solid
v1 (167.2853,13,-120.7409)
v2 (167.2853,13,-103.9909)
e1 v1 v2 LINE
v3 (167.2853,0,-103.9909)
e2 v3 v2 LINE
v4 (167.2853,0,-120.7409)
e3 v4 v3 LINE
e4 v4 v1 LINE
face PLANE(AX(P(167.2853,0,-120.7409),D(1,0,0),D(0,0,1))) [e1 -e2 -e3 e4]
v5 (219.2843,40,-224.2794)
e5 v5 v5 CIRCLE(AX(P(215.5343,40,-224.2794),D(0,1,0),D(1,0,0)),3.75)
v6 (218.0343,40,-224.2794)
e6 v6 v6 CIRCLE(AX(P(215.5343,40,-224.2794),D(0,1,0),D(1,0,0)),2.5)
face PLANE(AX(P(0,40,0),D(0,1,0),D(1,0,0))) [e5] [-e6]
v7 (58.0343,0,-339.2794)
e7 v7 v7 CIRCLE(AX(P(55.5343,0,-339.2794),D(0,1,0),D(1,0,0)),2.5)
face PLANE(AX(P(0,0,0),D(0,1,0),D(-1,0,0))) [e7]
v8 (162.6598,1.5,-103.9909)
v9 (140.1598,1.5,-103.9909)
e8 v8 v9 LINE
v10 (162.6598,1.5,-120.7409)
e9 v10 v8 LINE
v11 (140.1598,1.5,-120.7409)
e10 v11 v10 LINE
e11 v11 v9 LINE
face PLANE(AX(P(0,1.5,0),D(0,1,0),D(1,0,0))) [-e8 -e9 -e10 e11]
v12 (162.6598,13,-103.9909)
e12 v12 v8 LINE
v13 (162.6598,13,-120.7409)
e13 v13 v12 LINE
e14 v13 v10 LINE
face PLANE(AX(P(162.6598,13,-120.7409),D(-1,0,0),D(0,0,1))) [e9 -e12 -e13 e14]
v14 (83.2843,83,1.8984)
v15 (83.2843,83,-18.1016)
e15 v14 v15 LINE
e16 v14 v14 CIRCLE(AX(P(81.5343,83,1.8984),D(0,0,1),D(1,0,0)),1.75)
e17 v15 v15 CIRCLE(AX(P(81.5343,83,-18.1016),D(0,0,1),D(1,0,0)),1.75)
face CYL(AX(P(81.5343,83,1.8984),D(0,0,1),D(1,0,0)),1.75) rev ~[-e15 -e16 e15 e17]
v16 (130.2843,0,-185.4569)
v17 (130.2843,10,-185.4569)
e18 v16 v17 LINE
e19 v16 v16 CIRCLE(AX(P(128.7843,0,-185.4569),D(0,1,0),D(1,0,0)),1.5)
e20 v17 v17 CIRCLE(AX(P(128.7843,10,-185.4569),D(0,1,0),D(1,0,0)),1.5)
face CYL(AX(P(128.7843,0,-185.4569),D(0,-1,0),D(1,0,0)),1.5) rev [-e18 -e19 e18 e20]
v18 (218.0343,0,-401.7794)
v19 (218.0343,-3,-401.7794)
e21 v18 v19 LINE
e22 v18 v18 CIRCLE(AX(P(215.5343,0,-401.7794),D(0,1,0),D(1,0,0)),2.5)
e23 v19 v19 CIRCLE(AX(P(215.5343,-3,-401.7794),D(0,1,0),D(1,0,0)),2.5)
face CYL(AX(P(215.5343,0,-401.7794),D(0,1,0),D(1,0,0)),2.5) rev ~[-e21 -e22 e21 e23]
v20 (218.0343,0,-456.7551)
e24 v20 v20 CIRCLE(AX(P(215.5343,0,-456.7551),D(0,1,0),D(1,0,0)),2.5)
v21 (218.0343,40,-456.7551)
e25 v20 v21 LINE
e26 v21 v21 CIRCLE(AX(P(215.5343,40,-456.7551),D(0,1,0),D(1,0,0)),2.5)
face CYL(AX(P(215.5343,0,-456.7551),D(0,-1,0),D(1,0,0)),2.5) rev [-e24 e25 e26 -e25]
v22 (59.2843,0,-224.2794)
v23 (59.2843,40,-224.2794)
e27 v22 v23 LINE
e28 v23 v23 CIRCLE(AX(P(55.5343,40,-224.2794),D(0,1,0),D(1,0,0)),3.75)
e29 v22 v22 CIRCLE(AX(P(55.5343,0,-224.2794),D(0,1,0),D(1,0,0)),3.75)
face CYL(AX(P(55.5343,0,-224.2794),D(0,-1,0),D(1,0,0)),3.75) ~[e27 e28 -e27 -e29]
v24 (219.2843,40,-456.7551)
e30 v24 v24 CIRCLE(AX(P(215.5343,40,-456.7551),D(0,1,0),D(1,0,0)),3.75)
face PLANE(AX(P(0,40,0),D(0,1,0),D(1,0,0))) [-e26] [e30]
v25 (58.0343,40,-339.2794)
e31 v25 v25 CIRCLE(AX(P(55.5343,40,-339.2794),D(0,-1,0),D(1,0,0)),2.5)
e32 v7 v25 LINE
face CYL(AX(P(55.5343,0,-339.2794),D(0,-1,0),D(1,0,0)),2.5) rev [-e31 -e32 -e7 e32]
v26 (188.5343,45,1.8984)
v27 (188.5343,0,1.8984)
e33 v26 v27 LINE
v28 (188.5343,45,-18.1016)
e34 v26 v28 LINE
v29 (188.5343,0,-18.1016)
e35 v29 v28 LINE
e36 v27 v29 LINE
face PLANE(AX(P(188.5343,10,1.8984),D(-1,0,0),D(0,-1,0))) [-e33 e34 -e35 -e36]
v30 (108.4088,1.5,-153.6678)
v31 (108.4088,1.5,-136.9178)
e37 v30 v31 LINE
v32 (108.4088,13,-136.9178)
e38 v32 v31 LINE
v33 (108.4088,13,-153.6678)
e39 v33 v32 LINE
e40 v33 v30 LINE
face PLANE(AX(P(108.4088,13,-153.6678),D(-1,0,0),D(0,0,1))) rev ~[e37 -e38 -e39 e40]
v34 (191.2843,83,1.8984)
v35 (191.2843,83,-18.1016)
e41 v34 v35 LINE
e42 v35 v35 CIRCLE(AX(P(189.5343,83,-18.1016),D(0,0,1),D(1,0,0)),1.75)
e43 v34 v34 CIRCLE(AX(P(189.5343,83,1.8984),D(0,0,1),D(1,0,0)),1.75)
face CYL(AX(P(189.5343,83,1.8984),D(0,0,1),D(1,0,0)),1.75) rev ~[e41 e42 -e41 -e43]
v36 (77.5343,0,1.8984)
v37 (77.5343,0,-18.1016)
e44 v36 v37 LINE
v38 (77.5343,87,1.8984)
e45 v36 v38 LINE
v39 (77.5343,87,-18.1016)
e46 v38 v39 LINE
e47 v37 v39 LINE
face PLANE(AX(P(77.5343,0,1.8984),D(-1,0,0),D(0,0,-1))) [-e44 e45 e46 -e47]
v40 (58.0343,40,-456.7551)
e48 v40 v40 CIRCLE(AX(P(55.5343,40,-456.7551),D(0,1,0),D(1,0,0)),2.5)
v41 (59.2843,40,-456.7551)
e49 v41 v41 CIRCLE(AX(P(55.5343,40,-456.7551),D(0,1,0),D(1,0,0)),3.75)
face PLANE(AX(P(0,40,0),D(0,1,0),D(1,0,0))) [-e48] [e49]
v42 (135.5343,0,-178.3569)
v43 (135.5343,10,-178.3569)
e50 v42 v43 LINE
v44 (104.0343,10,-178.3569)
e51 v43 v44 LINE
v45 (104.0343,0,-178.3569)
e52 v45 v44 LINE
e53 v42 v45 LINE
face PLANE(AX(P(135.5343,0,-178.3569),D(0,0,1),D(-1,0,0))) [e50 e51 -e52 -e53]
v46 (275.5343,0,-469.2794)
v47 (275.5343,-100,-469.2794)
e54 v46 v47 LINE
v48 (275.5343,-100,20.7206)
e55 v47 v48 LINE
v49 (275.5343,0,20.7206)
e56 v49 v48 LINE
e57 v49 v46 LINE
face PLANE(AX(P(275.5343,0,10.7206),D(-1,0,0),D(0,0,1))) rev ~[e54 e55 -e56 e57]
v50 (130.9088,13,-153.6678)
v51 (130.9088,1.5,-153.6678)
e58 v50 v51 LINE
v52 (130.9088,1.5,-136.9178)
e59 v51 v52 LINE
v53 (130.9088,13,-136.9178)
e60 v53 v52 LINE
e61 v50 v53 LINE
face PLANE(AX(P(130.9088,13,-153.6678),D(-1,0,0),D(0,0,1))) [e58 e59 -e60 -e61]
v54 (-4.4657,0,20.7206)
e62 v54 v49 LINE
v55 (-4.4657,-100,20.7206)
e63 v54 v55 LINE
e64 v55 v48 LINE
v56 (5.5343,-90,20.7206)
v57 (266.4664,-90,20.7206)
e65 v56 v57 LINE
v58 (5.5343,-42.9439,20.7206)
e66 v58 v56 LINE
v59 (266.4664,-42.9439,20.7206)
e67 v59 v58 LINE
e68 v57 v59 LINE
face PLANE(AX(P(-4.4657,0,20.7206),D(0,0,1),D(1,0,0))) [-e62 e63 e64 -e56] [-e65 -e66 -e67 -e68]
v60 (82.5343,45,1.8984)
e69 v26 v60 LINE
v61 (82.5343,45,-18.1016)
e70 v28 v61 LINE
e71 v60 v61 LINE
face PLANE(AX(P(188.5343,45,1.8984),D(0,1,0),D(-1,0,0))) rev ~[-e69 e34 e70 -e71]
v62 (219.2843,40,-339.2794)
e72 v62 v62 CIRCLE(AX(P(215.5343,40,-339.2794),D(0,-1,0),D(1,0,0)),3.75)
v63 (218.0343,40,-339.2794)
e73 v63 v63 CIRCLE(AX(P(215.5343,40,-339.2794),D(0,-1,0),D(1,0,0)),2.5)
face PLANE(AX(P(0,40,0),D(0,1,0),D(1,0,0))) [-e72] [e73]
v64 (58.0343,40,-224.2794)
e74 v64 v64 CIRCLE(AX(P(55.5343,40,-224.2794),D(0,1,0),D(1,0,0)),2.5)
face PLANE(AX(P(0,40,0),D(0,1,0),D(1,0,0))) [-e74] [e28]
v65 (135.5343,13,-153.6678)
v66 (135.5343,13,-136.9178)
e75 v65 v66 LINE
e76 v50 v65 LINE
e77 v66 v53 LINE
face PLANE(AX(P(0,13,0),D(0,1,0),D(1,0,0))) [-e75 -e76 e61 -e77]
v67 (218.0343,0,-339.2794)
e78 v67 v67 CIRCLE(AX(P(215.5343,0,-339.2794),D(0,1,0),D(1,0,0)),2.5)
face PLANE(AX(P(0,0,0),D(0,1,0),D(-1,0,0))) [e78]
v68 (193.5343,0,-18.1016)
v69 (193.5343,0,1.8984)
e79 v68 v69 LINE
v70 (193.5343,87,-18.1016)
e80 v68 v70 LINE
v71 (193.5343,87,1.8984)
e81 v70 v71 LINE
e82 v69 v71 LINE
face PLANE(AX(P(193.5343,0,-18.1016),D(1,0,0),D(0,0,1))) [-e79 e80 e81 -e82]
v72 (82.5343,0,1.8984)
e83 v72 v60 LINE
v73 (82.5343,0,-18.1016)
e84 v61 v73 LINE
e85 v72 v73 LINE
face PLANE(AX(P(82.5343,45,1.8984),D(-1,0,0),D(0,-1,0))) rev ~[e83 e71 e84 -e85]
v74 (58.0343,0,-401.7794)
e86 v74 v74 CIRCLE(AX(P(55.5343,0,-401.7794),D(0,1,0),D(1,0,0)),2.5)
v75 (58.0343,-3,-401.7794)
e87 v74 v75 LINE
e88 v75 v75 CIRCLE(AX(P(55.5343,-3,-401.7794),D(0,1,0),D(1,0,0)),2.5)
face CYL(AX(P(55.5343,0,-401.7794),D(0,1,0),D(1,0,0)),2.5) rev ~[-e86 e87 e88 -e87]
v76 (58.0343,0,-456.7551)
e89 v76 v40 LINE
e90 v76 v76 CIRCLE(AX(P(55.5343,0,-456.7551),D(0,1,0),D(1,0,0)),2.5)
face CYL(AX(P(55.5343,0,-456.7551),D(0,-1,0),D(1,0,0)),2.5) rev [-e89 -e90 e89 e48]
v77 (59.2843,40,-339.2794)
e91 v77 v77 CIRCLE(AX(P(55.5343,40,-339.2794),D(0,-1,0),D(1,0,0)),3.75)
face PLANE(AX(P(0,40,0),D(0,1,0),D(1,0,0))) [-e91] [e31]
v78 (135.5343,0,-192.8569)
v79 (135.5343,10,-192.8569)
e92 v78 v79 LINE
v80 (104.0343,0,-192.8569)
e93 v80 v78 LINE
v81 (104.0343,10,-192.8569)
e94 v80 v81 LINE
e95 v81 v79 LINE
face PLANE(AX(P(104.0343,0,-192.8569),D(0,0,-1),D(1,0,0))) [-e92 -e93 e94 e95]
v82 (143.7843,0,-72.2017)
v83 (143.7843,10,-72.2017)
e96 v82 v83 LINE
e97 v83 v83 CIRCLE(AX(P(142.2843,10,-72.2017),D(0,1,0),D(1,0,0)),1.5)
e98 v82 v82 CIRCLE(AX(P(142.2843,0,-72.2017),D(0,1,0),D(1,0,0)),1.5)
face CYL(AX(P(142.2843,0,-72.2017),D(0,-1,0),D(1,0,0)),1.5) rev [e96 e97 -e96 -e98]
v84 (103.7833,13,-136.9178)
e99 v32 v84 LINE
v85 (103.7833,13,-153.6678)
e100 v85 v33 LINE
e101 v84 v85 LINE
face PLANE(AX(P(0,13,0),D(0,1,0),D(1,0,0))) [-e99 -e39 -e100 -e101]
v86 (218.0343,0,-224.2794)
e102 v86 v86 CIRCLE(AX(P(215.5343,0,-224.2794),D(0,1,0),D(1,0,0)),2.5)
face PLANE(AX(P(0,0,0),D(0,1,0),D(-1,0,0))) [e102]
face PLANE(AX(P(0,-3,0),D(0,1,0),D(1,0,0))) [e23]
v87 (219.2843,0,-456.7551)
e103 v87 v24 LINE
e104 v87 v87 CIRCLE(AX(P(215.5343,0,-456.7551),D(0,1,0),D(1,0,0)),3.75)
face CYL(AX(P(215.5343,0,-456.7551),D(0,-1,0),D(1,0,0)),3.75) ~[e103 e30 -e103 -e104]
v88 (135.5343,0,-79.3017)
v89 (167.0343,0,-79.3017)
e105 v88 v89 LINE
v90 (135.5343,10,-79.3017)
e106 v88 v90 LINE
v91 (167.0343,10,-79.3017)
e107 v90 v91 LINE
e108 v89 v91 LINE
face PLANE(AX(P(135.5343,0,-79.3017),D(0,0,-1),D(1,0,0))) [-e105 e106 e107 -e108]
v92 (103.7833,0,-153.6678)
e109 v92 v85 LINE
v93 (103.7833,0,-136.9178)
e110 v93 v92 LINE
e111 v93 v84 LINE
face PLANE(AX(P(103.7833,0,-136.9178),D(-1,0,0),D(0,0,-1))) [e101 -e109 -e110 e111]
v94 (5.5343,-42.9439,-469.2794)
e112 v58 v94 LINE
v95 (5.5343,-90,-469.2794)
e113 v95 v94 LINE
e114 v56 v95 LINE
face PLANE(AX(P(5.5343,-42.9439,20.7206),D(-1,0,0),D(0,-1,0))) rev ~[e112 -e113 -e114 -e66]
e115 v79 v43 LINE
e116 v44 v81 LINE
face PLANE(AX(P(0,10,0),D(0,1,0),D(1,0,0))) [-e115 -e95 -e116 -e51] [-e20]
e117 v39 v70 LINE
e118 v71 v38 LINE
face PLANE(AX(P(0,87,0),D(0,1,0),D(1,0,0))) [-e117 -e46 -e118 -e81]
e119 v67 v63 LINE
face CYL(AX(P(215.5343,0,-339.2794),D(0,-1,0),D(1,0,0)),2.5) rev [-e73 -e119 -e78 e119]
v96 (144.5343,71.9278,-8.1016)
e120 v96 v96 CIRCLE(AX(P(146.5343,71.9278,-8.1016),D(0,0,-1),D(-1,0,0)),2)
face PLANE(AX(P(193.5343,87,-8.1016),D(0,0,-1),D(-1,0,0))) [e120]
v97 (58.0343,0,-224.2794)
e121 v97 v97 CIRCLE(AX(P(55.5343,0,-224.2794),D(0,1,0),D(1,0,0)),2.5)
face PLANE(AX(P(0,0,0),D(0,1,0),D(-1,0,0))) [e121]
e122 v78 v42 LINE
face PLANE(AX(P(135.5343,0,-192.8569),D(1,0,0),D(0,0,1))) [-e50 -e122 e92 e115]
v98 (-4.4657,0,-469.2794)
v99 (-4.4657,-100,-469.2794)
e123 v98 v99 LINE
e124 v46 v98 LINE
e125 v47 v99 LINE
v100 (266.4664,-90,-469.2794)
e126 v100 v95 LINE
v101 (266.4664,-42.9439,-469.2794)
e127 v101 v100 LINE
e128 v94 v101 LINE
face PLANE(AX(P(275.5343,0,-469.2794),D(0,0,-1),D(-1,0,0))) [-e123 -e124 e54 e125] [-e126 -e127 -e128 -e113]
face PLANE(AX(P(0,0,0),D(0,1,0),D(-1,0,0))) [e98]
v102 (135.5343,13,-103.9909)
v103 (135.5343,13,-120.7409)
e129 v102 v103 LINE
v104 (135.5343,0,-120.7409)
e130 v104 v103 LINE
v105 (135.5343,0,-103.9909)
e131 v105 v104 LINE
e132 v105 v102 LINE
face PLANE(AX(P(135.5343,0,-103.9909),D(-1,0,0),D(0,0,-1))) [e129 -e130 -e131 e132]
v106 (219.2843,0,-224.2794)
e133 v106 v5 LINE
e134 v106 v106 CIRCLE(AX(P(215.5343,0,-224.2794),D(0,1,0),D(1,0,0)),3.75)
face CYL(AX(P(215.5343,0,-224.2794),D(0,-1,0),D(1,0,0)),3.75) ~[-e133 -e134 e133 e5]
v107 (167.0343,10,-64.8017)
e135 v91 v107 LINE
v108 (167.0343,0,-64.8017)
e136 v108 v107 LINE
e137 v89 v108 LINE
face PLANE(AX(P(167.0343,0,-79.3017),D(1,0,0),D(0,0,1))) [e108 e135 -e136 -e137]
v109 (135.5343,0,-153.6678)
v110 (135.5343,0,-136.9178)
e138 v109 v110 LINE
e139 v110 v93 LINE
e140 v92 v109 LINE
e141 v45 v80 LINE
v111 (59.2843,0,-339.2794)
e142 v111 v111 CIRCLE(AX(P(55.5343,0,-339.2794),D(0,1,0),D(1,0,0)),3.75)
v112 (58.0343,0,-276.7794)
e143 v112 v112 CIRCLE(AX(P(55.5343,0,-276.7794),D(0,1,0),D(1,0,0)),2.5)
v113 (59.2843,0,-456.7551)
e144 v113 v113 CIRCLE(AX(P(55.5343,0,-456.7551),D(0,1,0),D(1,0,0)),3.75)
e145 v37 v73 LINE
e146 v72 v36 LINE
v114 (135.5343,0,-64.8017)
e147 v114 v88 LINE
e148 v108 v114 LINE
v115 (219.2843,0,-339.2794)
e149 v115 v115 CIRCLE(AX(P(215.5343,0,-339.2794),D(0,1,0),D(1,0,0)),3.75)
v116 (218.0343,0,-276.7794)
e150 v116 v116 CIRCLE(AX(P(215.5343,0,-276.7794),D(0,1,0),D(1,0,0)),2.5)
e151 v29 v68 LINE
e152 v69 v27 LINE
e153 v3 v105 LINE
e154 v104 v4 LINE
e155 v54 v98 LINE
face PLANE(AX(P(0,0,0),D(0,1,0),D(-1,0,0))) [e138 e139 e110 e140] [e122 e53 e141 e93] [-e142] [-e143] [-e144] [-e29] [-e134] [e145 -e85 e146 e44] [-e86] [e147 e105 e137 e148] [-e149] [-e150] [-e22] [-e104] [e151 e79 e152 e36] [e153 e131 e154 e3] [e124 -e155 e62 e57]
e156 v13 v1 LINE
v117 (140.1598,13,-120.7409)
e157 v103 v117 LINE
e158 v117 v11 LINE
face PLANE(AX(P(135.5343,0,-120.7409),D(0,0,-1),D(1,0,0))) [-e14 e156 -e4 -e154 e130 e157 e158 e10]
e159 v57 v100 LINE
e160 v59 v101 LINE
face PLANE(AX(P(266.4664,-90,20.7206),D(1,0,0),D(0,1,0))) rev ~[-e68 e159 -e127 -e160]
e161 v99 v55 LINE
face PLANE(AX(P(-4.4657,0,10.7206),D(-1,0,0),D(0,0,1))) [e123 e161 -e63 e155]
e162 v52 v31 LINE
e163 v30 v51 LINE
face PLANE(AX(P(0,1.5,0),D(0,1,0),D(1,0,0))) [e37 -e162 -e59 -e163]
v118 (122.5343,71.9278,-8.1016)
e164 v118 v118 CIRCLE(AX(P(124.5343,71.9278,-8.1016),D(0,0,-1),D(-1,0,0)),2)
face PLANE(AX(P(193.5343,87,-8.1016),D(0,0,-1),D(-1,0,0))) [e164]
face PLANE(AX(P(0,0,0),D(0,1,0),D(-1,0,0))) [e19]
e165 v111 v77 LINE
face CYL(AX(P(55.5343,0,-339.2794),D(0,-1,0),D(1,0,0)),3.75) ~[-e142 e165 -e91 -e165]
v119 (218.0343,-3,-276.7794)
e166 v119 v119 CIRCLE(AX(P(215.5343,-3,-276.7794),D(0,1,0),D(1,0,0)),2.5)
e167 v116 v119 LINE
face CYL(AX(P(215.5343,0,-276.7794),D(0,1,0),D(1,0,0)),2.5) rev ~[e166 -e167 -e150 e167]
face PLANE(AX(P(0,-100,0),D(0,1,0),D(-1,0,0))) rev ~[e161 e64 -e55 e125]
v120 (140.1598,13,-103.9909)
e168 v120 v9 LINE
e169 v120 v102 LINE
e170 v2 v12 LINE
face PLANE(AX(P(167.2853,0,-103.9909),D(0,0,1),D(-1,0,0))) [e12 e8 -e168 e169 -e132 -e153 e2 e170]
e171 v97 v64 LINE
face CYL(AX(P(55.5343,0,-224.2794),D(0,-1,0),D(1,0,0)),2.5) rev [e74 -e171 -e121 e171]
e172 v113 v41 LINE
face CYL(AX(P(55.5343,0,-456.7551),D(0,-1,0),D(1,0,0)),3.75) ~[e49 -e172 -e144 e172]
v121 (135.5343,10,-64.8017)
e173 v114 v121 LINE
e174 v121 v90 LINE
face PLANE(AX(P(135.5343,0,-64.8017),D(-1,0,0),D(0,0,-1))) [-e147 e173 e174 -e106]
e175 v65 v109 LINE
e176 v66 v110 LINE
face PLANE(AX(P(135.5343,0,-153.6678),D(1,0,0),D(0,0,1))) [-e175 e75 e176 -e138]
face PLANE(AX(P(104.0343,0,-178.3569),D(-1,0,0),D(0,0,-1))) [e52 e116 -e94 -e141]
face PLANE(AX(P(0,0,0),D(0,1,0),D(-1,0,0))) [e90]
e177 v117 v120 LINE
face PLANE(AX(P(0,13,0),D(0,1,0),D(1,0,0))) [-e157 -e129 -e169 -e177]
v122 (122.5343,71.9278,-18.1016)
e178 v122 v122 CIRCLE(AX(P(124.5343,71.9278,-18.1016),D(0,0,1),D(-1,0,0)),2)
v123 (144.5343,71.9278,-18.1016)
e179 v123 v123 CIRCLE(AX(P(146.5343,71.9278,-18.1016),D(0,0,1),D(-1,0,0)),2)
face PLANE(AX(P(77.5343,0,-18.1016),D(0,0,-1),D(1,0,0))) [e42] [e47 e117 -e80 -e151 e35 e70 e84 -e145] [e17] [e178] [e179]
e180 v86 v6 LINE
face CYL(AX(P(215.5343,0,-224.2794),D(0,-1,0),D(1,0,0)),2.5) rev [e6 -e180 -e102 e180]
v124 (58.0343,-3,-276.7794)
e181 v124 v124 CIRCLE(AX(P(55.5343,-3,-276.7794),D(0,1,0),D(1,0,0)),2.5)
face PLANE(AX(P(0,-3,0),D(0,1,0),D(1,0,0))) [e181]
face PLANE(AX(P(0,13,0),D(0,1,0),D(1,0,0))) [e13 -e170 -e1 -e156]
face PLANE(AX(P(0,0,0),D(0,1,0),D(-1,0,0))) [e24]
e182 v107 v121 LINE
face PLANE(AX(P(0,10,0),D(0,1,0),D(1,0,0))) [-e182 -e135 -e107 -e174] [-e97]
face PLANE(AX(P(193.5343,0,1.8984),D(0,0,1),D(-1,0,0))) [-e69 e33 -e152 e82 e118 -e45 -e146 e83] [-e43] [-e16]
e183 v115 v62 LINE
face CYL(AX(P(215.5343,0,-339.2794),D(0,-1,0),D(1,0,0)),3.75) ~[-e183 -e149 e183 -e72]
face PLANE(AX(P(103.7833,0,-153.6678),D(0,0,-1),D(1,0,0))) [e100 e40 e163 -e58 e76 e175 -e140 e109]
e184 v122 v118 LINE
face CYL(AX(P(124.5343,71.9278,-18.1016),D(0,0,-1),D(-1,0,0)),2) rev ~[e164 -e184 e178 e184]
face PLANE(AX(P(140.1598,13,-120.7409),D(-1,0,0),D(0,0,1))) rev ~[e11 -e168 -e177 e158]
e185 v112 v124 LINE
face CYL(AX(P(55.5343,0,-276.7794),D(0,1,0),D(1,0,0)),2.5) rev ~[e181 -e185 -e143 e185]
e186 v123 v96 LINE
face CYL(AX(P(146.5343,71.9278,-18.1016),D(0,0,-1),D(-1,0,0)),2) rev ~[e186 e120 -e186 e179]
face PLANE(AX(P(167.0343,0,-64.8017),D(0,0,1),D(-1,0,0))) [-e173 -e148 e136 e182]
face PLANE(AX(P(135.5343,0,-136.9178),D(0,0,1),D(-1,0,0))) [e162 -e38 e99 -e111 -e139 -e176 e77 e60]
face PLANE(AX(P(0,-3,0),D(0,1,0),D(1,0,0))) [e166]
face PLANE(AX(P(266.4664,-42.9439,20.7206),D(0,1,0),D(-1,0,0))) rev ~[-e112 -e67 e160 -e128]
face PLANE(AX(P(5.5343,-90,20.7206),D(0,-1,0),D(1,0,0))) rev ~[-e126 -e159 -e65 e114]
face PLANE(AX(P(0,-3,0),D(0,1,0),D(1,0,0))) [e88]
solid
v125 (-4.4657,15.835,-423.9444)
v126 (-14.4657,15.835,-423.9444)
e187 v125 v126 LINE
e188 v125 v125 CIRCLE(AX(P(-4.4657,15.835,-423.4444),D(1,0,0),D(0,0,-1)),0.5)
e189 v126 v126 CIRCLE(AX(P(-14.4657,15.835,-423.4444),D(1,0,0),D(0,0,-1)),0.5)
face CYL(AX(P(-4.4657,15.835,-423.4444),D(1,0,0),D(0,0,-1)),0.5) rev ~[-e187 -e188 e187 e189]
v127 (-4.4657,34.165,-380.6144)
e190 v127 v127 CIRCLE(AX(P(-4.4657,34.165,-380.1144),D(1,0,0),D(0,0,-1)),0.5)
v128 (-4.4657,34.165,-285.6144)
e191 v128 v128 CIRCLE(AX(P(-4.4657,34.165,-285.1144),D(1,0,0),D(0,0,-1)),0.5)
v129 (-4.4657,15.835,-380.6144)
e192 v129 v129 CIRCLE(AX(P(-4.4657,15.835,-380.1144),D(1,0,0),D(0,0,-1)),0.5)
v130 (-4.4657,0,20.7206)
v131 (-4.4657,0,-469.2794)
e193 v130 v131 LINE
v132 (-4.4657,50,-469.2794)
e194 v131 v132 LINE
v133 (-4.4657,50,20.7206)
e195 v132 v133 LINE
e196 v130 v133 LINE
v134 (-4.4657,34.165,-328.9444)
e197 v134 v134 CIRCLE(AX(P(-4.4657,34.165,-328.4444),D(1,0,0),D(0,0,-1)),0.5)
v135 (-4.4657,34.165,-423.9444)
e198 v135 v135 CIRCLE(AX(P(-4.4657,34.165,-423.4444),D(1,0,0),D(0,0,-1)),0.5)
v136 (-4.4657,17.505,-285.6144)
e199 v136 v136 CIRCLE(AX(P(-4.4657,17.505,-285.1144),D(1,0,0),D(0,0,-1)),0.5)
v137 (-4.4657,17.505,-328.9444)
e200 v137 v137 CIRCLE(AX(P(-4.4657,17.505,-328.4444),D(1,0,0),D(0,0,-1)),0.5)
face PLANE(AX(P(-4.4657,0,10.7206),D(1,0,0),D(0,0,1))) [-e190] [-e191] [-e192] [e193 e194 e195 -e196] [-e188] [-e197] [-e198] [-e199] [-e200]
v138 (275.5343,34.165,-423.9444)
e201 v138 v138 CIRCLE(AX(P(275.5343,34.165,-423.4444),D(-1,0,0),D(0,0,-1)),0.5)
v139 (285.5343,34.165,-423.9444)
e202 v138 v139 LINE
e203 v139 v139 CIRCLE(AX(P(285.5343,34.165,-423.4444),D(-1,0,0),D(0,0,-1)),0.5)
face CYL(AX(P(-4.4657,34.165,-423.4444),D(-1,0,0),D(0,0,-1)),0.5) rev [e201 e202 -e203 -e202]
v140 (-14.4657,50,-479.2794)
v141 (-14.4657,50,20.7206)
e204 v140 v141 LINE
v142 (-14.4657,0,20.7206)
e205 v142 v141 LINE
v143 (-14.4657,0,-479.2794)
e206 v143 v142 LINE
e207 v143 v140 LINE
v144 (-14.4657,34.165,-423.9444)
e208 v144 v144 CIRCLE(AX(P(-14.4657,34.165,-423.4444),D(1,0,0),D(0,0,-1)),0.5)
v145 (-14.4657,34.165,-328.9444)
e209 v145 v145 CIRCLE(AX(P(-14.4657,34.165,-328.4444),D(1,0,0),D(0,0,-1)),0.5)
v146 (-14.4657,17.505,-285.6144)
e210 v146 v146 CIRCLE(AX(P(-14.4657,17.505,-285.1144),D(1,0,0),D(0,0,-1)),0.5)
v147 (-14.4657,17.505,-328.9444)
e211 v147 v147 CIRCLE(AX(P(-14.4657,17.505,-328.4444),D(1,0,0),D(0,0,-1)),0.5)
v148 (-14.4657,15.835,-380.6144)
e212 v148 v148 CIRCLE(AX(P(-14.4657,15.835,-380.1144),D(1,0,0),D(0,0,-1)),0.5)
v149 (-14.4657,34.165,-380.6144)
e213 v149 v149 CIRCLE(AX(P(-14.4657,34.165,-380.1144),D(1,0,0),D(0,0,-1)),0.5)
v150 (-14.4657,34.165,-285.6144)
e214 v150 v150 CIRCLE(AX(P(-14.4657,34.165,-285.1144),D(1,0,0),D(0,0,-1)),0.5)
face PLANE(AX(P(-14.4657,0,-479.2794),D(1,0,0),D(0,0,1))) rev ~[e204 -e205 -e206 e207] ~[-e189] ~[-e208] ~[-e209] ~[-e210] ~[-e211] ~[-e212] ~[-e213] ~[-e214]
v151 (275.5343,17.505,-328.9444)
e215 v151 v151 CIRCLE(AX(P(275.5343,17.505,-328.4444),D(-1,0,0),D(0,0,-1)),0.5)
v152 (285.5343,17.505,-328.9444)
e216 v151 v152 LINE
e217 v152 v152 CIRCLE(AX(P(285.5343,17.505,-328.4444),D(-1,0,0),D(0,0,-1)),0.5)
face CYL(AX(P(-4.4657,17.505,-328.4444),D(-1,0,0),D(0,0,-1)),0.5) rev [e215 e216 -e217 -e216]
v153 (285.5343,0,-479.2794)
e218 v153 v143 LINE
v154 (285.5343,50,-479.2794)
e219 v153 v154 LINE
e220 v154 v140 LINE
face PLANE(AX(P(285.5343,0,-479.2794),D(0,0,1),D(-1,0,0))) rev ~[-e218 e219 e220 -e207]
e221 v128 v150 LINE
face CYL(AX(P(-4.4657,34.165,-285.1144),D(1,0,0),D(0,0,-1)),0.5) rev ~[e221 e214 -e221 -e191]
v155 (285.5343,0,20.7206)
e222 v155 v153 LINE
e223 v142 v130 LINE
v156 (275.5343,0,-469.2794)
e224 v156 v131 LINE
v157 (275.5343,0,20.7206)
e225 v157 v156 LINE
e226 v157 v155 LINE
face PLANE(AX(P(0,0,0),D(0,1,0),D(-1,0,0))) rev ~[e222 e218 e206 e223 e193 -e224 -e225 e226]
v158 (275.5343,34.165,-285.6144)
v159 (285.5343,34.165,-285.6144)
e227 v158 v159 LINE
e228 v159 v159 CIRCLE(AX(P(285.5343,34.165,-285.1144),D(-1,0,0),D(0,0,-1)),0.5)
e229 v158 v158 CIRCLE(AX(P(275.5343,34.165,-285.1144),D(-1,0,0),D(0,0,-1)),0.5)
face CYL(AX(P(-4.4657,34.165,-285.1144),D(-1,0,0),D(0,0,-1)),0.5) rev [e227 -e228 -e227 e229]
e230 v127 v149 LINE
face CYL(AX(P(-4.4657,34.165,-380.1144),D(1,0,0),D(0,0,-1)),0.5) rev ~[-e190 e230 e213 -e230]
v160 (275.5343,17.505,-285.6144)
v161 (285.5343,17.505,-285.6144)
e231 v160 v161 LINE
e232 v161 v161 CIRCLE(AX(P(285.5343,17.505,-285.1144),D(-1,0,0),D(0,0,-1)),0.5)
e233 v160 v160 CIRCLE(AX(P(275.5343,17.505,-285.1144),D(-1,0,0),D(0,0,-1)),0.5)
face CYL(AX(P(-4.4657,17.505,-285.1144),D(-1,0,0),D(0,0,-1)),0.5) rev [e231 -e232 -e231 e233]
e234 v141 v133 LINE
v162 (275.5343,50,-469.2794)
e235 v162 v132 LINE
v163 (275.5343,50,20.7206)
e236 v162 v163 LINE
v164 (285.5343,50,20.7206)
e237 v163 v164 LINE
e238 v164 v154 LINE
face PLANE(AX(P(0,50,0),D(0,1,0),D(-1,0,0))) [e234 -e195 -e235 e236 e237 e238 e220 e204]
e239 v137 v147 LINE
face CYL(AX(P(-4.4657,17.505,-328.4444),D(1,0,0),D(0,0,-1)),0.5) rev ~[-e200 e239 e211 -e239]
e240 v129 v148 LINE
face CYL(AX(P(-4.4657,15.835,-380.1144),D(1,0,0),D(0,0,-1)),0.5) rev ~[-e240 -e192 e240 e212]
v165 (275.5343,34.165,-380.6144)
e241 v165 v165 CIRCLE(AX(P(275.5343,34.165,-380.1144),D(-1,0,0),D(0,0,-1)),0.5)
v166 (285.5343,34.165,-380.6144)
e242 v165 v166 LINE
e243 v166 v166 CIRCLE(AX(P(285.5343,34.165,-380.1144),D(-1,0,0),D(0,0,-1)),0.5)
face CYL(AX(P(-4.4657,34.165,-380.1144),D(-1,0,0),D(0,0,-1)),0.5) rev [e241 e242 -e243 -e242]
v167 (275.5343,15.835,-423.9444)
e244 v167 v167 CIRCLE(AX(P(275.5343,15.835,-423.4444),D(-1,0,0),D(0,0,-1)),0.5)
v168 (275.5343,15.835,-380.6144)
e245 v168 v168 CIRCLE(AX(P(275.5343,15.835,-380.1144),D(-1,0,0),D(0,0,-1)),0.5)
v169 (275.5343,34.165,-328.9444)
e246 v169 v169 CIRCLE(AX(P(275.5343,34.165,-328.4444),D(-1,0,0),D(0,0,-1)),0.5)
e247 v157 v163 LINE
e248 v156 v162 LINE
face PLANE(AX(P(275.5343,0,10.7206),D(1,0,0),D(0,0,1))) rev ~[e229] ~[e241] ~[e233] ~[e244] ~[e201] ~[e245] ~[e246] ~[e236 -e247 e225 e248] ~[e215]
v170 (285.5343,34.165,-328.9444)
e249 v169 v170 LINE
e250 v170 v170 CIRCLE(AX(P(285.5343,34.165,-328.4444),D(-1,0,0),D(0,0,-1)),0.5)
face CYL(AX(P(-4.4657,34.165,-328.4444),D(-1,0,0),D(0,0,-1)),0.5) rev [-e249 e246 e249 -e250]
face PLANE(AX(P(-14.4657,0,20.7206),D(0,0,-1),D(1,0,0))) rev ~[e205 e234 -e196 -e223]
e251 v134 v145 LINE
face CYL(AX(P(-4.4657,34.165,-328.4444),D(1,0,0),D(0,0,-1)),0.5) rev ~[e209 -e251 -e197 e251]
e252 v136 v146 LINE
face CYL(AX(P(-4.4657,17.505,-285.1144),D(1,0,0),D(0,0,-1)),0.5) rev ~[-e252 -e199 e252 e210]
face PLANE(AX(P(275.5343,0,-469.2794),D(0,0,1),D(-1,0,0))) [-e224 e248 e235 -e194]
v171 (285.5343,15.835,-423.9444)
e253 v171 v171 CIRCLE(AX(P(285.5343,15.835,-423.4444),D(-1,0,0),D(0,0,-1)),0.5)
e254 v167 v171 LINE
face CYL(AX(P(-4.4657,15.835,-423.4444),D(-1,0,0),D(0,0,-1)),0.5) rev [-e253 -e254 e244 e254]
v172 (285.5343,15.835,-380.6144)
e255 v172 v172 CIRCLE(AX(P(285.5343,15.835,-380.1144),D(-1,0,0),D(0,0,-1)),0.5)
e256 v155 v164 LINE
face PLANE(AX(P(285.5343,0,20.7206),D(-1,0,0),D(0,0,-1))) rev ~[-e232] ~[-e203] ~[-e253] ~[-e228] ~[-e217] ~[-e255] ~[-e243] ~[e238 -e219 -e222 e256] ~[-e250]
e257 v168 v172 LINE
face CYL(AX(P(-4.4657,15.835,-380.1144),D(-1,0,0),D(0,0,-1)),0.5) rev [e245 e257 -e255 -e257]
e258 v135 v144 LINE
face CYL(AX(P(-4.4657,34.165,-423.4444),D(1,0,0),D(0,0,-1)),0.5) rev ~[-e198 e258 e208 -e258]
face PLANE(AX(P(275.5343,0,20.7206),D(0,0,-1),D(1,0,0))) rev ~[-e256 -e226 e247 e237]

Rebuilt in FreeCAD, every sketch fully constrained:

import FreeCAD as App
import Part
import Sketcher

V = App.Vector
Q = App.Units.Quantity


def add_polygon(sketch, points):
    """Adds a closed chain of lines whose ends are joined by coincident constraints."""
    first, n = sketch.GeometryCount, len(points)
    for a, b in zip(points, points[1:] + points[:1]):
        sketch.addGeometry(Part.LineSegment(App.Vector(*a, 0), App.Vector(*b, 0)), False)
    for i in range(n):
        sketch.addConstraint(Sketcher.Constraint("Coincident", first + i, 2, first + (i + 1) % n, 1))

doc = App.newDocument("Part")
body = doc.addObject("PartDesign::Body", "Body")
body.AllowCompound = True

# Sketch on XZ plane
sketch1 = body.newObject("Sketcher::SketchObject", "Sketch")
sketch1.AttachmentSupport = (doc.getObject("XZ_Plane"), [""])
sketch1.MapMode = "FlatFace"
add_polygon(sketch1, [(-4.4657, -469.2794), (-4.4657, 20.7206), (275.5343, 20.7206), (275.5343, -469.2794)])  # lines 0-3
sketch1.addConstraint([
    Sketcher.Constraint("Vertical", 0),
    Sketcher.Constraint("Horizontal", 1),
    Sketcher.Constraint("Vertical", 2),
    Sketcher.Constraint("Horizontal", 3),
    Sketcher.Constraint("DistanceX", 1, 1, 1, 2, Q("280 mm")),
    Sketcher.Constraint("DistanceY", 0, 1, 0, 2, Q("490 mm")),
    Sketcher.Constraint("DistanceX", 0, 2, -1, 1, Q("4.4657 mm")),
    Sketcher.Constraint("DistanceY", -1, 1, 0, 2, Q("20.7206 mm")),
])
pad1 = body.newObject("PartDesign::Pad", "Pad")
pad1.Profile = sketch1
pad1.Length = 100

# Sketch on XZ plane
sketch2 = body.newObject("Sketcher::SketchObject", "Sketch001")
sketch2.AttachmentSupport = (doc.getObject("XZ_Plane"), [""])
sketch2.MapMode = "FlatFace"
add_polygon(sketch2, [(-14.4657, -479.2794), (-14.4657, 20.7206), (-4.4657, 20.7206), (-4.4657, -469.2794), (275.5343, -469.2794), (275.5343, 20.7206), (285.5343, 20.7206), (285.5343, -479.2794)])  # lines 0-7
sketch2.addConstraint([
    Sketcher.Constraint("Vertical", 0),
    Sketcher.Constraint("Horizontal", 1),
    Sketcher.Constraint("Vertical", 2),
    Sketcher.Constraint("Horizontal", 3),
    Sketcher.Constraint("Vertical", 4),
    Sketcher.Constraint("Horizontal", 5),
    Sketcher.Constraint("Vertical", 6),
    Sketcher.Constraint("Horizontal", 7),
    Sketcher.Constraint("Horizontal", 1, 2, 4, 2),
    Sketcher.Constraint("Equal", 1, 5),
    Sketcher.Constraint("DistanceX", 1, 1, 1, 2, Q("10 mm")),
    Sketcher.Constraint("DistanceX", 7, 2, 7, 1, Q("300 mm")),
    Sketcher.Constraint("DistanceY", 0, 1, 0, 2, Q("500 mm")),
    Sketcher.Constraint("DistanceY", 6, 2, 3, 2, Q("10 mm")),
    Sketcher.Constraint("DistanceX", 0, 2, -1, 1, Q("14.4657 mm")),
    Sketcher.Constraint("DistanceY", -1, 1, 0, 2, Q("20.7206 mm")),
])
pad2 = body.newObject("PartDesign::Pad", "Pad001")
pad2.Profile = sketch2
pad2.Length = 50
pad2.Reversed = True

# Sketch on XZ plane
sketch3 = body.newObject("Sketcher::SketchObject", "Sketch002")
sketch3.AttachmentSupport = (doc.getObject("XZ_Plane"), [""])
sketch3.MapMode = "FlatFace"
add_polygon(sketch3, [(135.5343, -178.3569), (135.5343, -192.8569), (104.0343, -192.8569), (104.0343, -178.3569)])  # lines 0-3
sketch3.addGeometry(Part.Circle(V(128.7843, -185.4569, 0), V(0, 0, 1), 1.5), False)  # 4
sketch3.addConstraint([
    Sketcher.Constraint("Vertical", 0),
    Sketcher.Constraint("Horizontal", 1),
    Sketcher.Constraint("Vertical", 2),
    Sketcher.Constraint("Horizontal", 3),
    Sketcher.Constraint("Diameter", 4, Q("3 mm")),
    Sketcher.Constraint("DistanceX", 1, 2, 1, 1, Q("31.5 mm")),
    Sketcher.Constraint("DistanceY", 0, 2, 0, 1, Q("14.5 mm")),
    Sketcher.Constraint("DistanceY", 4, 3, 2, 2, Q("7.1 mm")),
    Sketcher.Constraint("DistanceX", 4, 3, 0, 2, Q("6.75 mm")),
    Sketcher.Constraint("DistanceY", 4, 3, -1, 1, Q("185.457 mm")),
    Sketcher.Constraint("DistanceX", -1, 1, 4, 3, Q("128.7843 mm")),
])
pad3 = body.newObject("PartDesign::Pad", "Pad002")
pad3.Profile = sketch3
pad3.Length = 10
pad3.Reversed = True

# Sketch on XY plane
sketch4 = body.newObject("Sketcher::SketchObject", "Sketch003")
sketch4.AttachmentSupport = (doc.getObject("XY_Plane"), [""])
sketch4.MapMode = "FlatFace"
sketch4.AttachmentOffset = App.Placement(V(0, 0, 20.7206), App.Rotation())
add_polygon(sketch4, [(266.4664, -90), (266.4664, -42.9439), (5.5343, -42.9439), (5.5343, -90)])  # lines 0-3
sketch4.addConstraint([
    Sketcher.Constraint("Vertical", 0),
    Sketcher.Constraint("Horizontal", 1),
    Sketcher.Constraint("Vertical", 2),
    Sketcher.Constraint("Horizontal", 3),
    Sketcher.Constraint("DistanceY", 2, 2, -1, 1, Q("90 mm")),
    Sketcher.Constraint("DistanceX", 1, 2, 1, 1, Q("260.932 mm")),
    Sketcher.Constraint("DistanceY", 0, 1, 0, 2, Q("47.056 mm")),
    Sketcher.Constraint("DistanceX", -1, 1, 0, 2, Q("266.4664 mm")),
])
pocket1 = body.newObject("PartDesign::Pocket", "Pocket")
pocket1.Profile = sketch4
pocket1.Type = "ThroughAll"

# Sketch on XZ plane
sketch5 = body.newObject("Sketcher::SketchObject", "Sketch004")
sketch5.AttachmentSupport = (doc.getObject("XZ_Plane"), [""])
sketch5.MapMode = "FlatFace"
add_polygon(sketch5, [(135.5343, -136.9178), (135.5343, -153.6678), (103.7833, -153.6678), (103.7833, -136.9178)])  # lines 0-3
sketch5.addConstraint([
    Sketcher.Constraint("Vertical", 0),
    Sketcher.Constraint("Horizontal", 1),
    Sketcher.Constraint("Vertical", 2),
    Sketcher.Constraint("Horizontal", 3),
    Sketcher.Constraint("DistanceY", 0, 2, 0, 1, Q("16.75 mm")),
    Sketcher.Constraint("DistanceX", 1, 2, 1, 1, Q("31.751 mm")),
    Sketcher.Constraint("DistanceX", -1, 1, 0, 2, Q("135.5343 mm")),
    Sketcher.Constraint("DistanceY", 0, 2, -1, 1, Q("153.6678 mm")),
])
pad4 = body.newObject("PartDesign::Pad", "Pad003")
pad4.Profile = sketch5
pad4.Length = 10
pad4.Reversed = True

# Sketch on XZ plane
sketch6 = body.newObject("Sketcher::SketchObject", "Sketch005")
sketch6.AttachmentSupport = (doc.getObject("XZ_Plane"), [""])
sketch6.MapMode = "FlatFace"
add_polygon(sketch6, [(167.2853, -120.7409), (135.5343, -120.7409), (135.5343, -103.9909), (167.2853, -103.9909)])  # lines 0-3
add_polygon(sketch6, [(135.5343, -136.9178), (135.5343, -153.6678), (103.7833, -153.6678), (103.7833, -136.9178)])  # lines 4-7
sketch6.addConstraint([
    Sketcher.Constraint("Horizontal", 0),
    Sketcher.Constraint("Vertical", 1),
    Sketcher.Constraint("Horizontal", 2),
    Sketcher.Constraint("Vertical", 3),
    Sketcher.Constraint("Vertical", 4),
    Sketcher.Constraint("Horizontal", 5),
    Sketcher.Constraint("Vertical", 6),
    Sketcher.Constraint("Horizontal", 7),
    Sketcher.Constraint("Vertical", 1, 2, 4, 2),
    Sketcher.Constraint("Equal", 2, 5),
    Sketcher.Constraint("Equal", 3, 4),
    Sketcher.Constraint("DistanceY", 1, 1, 1, 2, Q("16.75 mm")),
    Sketcher.Constraint("DistanceX", 0, 2, 0, 1, Q("31.751 mm")),
    Sketcher.Constraint("DistanceY", 0, 2, -1, 1, Q("120.741 mm")),
    Sketcher.Constraint("DistanceY", 4, 2, 0, 2, Q("32.927 mm")),
    Sketcher.Constraint("DistanceX", -1, 1, 0, 2, Q("135.5343 mm")),
])
pad5 = body.newObject("PartDesign::Pad", "Pad004")
pad5.Profile = sketch6
pad5.Length = 13
pad5.Reversed = True

# Sketch on XZ plane
sketch7 = body.newObject("Sketcher::SketchObject", "Sketch006")
sketch7.AttachmentSupport = (doc.getObject("XZ_Plane"), [""])
sketch7.MapMode = "FlatFace"
add_polygon(sketch7, [(167.0343, -79.3017), (135.5343, -79.3017), (135.5343, -64.8017), (167.0343, -64.8017)])  # lines 0-3
sketch7.addGeometry(Part.Circle(V(142.2843, -72.2017, 0), V(0, 0, 1), 1.5), False)  # 4
sketch7.addConstraint([
    Sketcher.Constraint("Horizontal", 0),
    Sketcher.Constraint("Vertical", 1),
    Sketcher.Constraint("Horizontal", 2),
    Sketcher.Constraint("Vertical", 3),
    Sketcher.Constraint("Diameter", 4, Q("3 mm")),
    Sketcher.Constraint("DistanceX", 0, 2, 0, 1, Q("31.5 mm")),
    Sketcher.Constraint("DistanceY", 1, 1, 1, 2, Q("14.5 mm")),
    Sketcher.Constraint("DistanceY", 0, 2, 4, 3, Q("7.1 mm")),
    Sketcher.Constraint("DistanceX", 0, 2, 4, 3, Q("6.75 mm")),
    Sketcher.Constraint("DistanceX", -1, 1, 4, 3, Q("142.2843 mm")),
    Sketcher.Constraint("DistanceY", 4, 3, -1, 1, Q("72.2017 mm")),
])
pad6 = body.newObject("PartDesign::Pad", "Pad005")
pad6.Profile = sketch7
pad6.Length = 10
pad6.Reversed = True

# Sketch on XZ plane
sketch8 = body.newObject("Sketcher::SketchObject", "Sketch007")
sketch8.AttachmentSupport = (doc.getObject("XZ_Plane"), [""])
sketch8.MapMode = "FlatFace"
sketch8.AttachmentOffset = App.Placement(V(0, 0, -13), App.Rotation())
add_polygon(sketch8, [(130.9088, -153.6678), (108.4088, -153.6678), (108.4088, -136.9178), (130.9088, -136.9178)])  # lines 0-3
add_polygon(sketch8, [(140.1598, -120.7409), (140.1598, -103.9909), (162.6598, -103.9909), (162.6598, -120.7409)])  # lines 4-7
sketch8.addConstraint([
    Sketcher.Constraint("Horizontal", 0),
    Sketcher.Constraint("Vertical", 1),
    Sketcher.Constraint("Horizontal", 2),
    Sketcher.Constraint("Vertical", 3),
    Sketcher.Constraint("Vertical", 4),
    Sketcher.Constraint("Horizontal", 5),
    Sketcher.Constraint("Vertical", 6),
    Sketcher.Constraint("Horizontal", 7),
    Sketcher.Constraint("Equal", 2, 5),
    Sketcher.Constraint("Equal", 3, 4),
    Sketcher.Constraint("DistanceX", 0, 2, 0, 1, Q("22.5 mm")),
    Sketcher.Constraint("DistanceY", 1, 1, 1, 2, Q("16.75 mm")),
    Sketcher.Constraint("DistanceY", 4, 2, -1, 1, Q("103.991 mm")),
    Sketcher.Constraint("DistanceX", 2, 2, 4, 2, Q("9.251 mm")),
    Sketcher.Constraint("DistanceY", 2, 2, 4, 2, Q("32.927 mm")),
    Sketcher.Constraint("DistanceX", -1, 1, 0, 2, Q("108.4088 mm")),
])
pocket2 = body.newObject("PartDesign::Pocket", "Pocket001")
pocket2.Profile = sketch8
pocket2.Length = 11.5
pocket2.Reversed = True

# Sketch on YZ plane
sketch9 = body.newObject("Sketcher::SketchObject", "Sketch008")
sketch9.AttachmentSupport = (doc.getObject("YZ_Plane"), [""])
sketch9.MapMode = "FlatFace"
sketch9.AttachmentOffset = App.Placement(V(0, 0, -4.4657), App.Rotation())
sketch9.addGeometry([
    Part.Circle(V(34.165, -423.4444, 0), V(0, 0, 1), 0.5),  # 0
    Part.Circle(V(15.835, -423.4444, 0), V(0, 0, 1), 0.5),  # 1
    Part.Circle(V(34.165, -380.1144, 0), V(0, 0, 1), 0.5),  # 2
    Part.Circle(V(15.835, -380.1144, 0), V(0, 0, 1), 0.5),  # 3
    Part.Circle(V(34.165, -328.4444, 0), V(0, 0, 1), 0.5),  # 4
    Part.Circle(V(17.505, -328.4444, 0), V(0, 0, 1), 0.5),  # 5
    Part.Circle(V(34.165, -285.1144, 0), V(0, 0, 1), 0.5),  # 6
    Part.Circle(V(17.505, -285.1144, 0), V(0, 0, 1), 0.5),  # 7
], False)
sketch9.addConstraint([
    Sketcher.Constraint("Equal", 0, 1),
    Sketcher.Constraint("Equal", 1, 2),
    Sketcher.Constraint("Equal", 2, 3),
    Sketcher.Constraint("Equal", 3, 4),
    Sketcher.Constraint("Equal", 4, 5),
    Sketcher.Constraint("Equal", 5, 6),
    Sketcher.Constraint("Equal", 6, 7),
    Sketcher.Constraint("Horizontal", 0, 3, 1, 3),
    Sketcher.Constraint("Horizontal", 2, 3, 3, 3),
    Sketcher.Constraint("Horizontal", 4, 3, 5, 3),
    Sketcher.Constraint("Horizontal", 6, 3, 7, 3),
    Sketcher.Constraint("Vertical", 0, 3, 2, 3),
    Sketcher.Constraint("Vertical", 1, 3, 3, 3),
    Sketcher.Constraint("Vertical", 2, 3, 4, 3),
    Sketcher.Constraint("Vertical", 4, 3, 6, 3),
    Sketcher.Constraint("Vertical", 5, 3, 7, 3),
    Sketcher.Constraint("Diameter", 0, Q("1 mm")),
    Sketcher.Constraint("DistanceY", 0, 3, 4, 3, Q("95 mm")),
    Sketcher.Constraint("DistanceY", 2, 3, 6, 3, Q("95 mm")),
    Sketcher.Constraint("DistanceX", 1, 3, 0, 3, Q("18.33 mm")),
    Sketcher.Constraint("DistanceY", 0, 3, 2, 3, Q("43.33 mm")),
    Sketcher.Constraint("DistanceX", 5, 3, 4, 3, Q("16.66 mm")),
    Sketcher.Constraint("DistanceX", -1, 1, 0, 3, Q("34.165 mm")),
    Sketcher.Constraint("DistanceY", 0, 3, -1, 1, Q("423.4444 mm")),
])
pocket3 = body.newObject("PartDesign::Pocket", "Pocket002")
pocket3.Profile = sketch9
pocket3.Length = 1159.25
pocket3.Midplane = True

# Sketch on XZ plane
sketch10 = body.newObject("Sketcher::SketchObject", "Sketch009")
sketch10.AttachmentSupport = (doc.getObject("XZ_Plane"), [""])
sketch10.MapMode = "FlatFace"
sketch10.addGeometry([
    Part.Circle(V(55.5343, -401.7794, 0), V(0, 0, 1), 2.5),
    Part.Circle(V(215.5343, -401.7794, 0), V(0, 0, 1), 2.5),
    Part.Circle(V(55.5343, -276.7794, 0), V(0, 0, 1), 2.5),
    Part.Circle(V(215.5343, -276.7794, 0), V(0, 0, 1), 2.5),
], False)
sketch10.addConstraint([
    Sketcher.Constraint("Equal", 0, 1),
    Sketcher.Constraint("Equal", 1, 2),
    Sketcher.Constraint("Equal", 2, 3),
    Sketcher.Constraint("Horizontal", 0, 3, 1, 3),
    Sketcher.Constraint("Horizontal", 2, 3, 3, 3),
    Sketcher.Constraint("Vertical", 0, 3, 2, 3),
    Sketcher.Constraint("Vertical", 1, 3, 3, 3),
    Sketcher.Constraint("Diameter", 0, Q("5 mm")),
    Sketcher.Constraint("DistanceX", 0, 3, 1, 3, Q("160 mm")),
    Sketcher.Constraint("DistanceY", 0, 3, 2, 3, Q("125 mm")),
    Sketcher.Constraint("DistanceX", -1, 1, 0, 3, Q("55.5343 mm")),
    Sketcher.Constraint("DistanceY", 0, 3, -1, 1, Q("401.7794 mm")),
])
pocket4 = body.newObject("PartDesign::Pocket", "Pocket003")
pocket4.Profile = sketch10
pocket4.Length = 3
pocket4.Reversed = True

# Sketch on XZ plane
sketch11 = body.newObject("Sketcher::SketchObject", "Sketch010")
sketch11.AttachmentSupport = (doc.getObject("XZ_Plane"), [""])
sketch11.MapMode = "FlatFace"
add_polygon(sketch11, [(193.5343, -18.1016), (77.5343, -18.1016), (77.5343, 1.8984), (193.5343, 1.8984)])  # lines 0-3
sketch11.addConstraint([
    Sketcher.Constraint("Horizontal", 0),
    Sketcher.Constraint("Vertical", 1),
    Sketcher.Constraint("Horizontal", 2),
    Sketcher.Constraint("Vertical", 3),
    Sketcher.Constraint("DistanceX", 0, 2, 0, 1, Q("116 mm")),
    Sketcher.Constraint("DistanceY", 1, 1, 1, 2, Q("20 mm")),
    Sketcher.Constraint("DistanceX", -1, 1, 0, 2, Q("77.5343 mm")),
    Sketcher.Constraint("DistanceY", 0, 2, -1, 1, Q("18.1016 mm")),
])
pad7 = body.newObject("PartDesign::Pad", "Pad006")
pad7.Profile = sketch11
pad7.Length = 87
pad7.Reversed = True

# Sketch on XY plane
sketch12 = body.newObject("Sketcher::SketchObject", "Sketch011")
sketch12.AttachmentSupport = (doc.getObject("XY_Plane"), [""])
sketch12.MapMode = "FlatFace"
sketch12.AttachmentOffset = App.Placement(V(0, 0, 1.8984), App.Rotation())
sketch12.addGeometry([
    Part.Circle(V(189.5343, 83, 0), V(0, 0, 1), 1.75),
    Part.Circle(V(81.5343, 83, 0), V(0, 0, 1), 1.75),
], False)
sketch12.addConstraint([
    Sketcher.Constraint("Equal", 0, 1),
    Sketcher.Constraint("Horizontal", 0, 3, 1, 3),
    Sketcher.Constraint("Diameter", 0, Q("3.5 mm")),
    Sketcher.Constraint("DistanceY", -1, 1, 0, 3, Q("83 mm")),
    Sketcher.Constraint("DistanceX", 1, 3, 0, 3, Q("108 mm")),
    Sketcher.Constraint("DistanceX", -1, 1, 0, 3, Q("189.5343 mm")),
])
pocket5 = body.newObject("PartDesign::Pocket", "Pocket004")
pocket5.Profile = sketch12
pocket5.Length = 20

# Sketch on XY plane
sketch13 = body.newObject("Sketcher::SketchObject", "Sketch012")
sketch13.AttachmentSupport = (doc.getObject("XY_Plane"), [""])
sketch13.MapMode = "FlatFace"
sketch13.AttachmentOffset = App.Placement(V(0, 0, 1.8984), App.Rotation())
add_polygon(sketch13, [(82.5343, 45), (82.5343, 0), (188.5343, 0), (188.5343, 45)])  # lines 0-3
sketch13.addConstraint([
    Sketcher.Constraint("Vertical", 0),
    Sketcher.Constraint("Horizontal", 1),
    Sketcher.Constraint("Vertical", 2),
    Sketcher.Constraint("Horizontal", 3),
    Sketcher.Constraint("PointOnObject", 0, 2, -1),
    Sketcher.Constraint("DistanceX", 1, 1, 1, 2, Q("106 mm")),
    Sketcher.Constraint("DistanceY", 0, 2, 0, 1, Q("45 mm")),
    Sketcher.Constraint("DistanceX", -1, 1, 0, 2, Q("82.5343 mm")),
])
pocket6 = body.newObject("PartDesign::Pocket", "Pocket005")
pocket6.Profile = sketch13
pocket6.Length = 20

# Sketch on XZ plane
sketch14 = body.newObject("Sketcher::SketchObject", "Sketch013")
sketch14.AttachmentSupport = (doc.getObject("XZ_Plane"), [""])
sketch14.MapMode = "FlatFace"
sketch14.addGeometry([
    Part.Circle(V(55.5343, -339.2794, 0), V(0, 0, 1), 3.75),  # 0
    Part.Circle(V(55.5343, -339.2794, 0), V(0, 0, 1), 2.5),  # 1
    Part.Circle(V(215.5343, -339.2794, 0), V(0, 0, 1), 3.75),  # 2
    Part.Circle(V(215.5343, -339.2794, 0), V(0, 0, 1), 2.5),  # 3
    Part.Circle(V(55.5343, -456.7551, 0), V(0, 0, 1), 3.75),  # 4
    Part.Circle(V(55.5343, -456.7551, 0), V(0, 0, 1), 2.5),  # 5
    Part.Circle(V(55.5343, -224.2794, 0), V(0, 0, 1), 3.75),  # 6
    Part.Circle(V(55.5343, -224.2794, 0), V(0, 0, 1), 2.5),  # 7
    Part.Circle(V(215.5343, -456.7551, 0), V(0, 0, 1), 3.75),  # 8
    Part.Circle(V(215.5343, -456.7551, 0), V(0, 0, 1), 2.5),  # 9
    Part.Circle(V(215.5343, -224.2794, 0), V(0, 0, 1), 3.75),  # 10
    Part.Circle(V(215.5343, -224.2794, 0), V(0, 0, 1), 2.5),  # 11
], False)
sketch14.addConstraint([
    Sketcher.Constraint("Coincident", 1, 3, 0, 3),
    Sketcher.Constraint("Coincident", 3, 3, 2, 3),
    Sketcher.Constraint("Coincident", 5, 3, 4, 3),
    Sketcher.Constraint("Coincident", 7, 3, 6, 3),
    Sketcher.Constraint("Coincident", 9, 3, 8, 3),
    Sketcher.Constraint("Coincident", 11, 3, 10, 3),
    Sketcher.Constraint("Equal", 0, 2),
    Sketcher.Constraint("Equal", 1, 3),
    Sketcher.Constraint("Equal", 2, 4),
    Sketcher.Constraint("Equal", 3, 5),
    Sketcher.Constraint("Equal", 4, 6),
    Sketcher.Constraint("Equal", 5, 7),
    Sketcher.Constraint("Equal", 6, 8),
    Sketcher.Constraint("Equal", 7, 9),
    Sketcher.Constraint("Equal", 8, 10),
    Sketcher.Constraint("Equal", 9, 11),
    Sketcher.Constraint("Horizontal", 1, 3, 2, 3),
    Sketcher.Constraint("Horizontal", 5, 3, 8, 3),
    Sketcher.Constraint("Horizontal", 7, 3, 10, 3),
    Sketcher.Constraint("Vertical", 1, 3, 4, 3),
    Sketcher.Constraint("Vertical", 5, 3, 6, 3),
    Sketcher.Constraint("Vertical", 3, 3, 8, 3),
    Sketcher.Constraint("Vertical", 9, 3, 10, 3),
    Sketcher.Constraint("Diameter", 1, Q("5 mm")),
    Sketcher.Constraint("Diameter", 0, Q("7.5 mm")),
    Sketcher.Constraint("DistanceX", 0, 3, 2, 3, Q("160 mm")),
    Sketcher.Constraint("DistanceY", 0, 3, 6, 3, Q("115 mm")),
    Sketcher.Constraint("DistanceY", 4, 3, -1, 1, Q("456.755 mm")),
    Sketcher.Constraint("DistanceX", -1, 1, 0, 3, Q("55.5343 mm")),
    Sketcher.Constraint("DistanceY", 0, 3, -1, 1, Q("339.2794 mm")),
])
pad8 = body.newObject("PartDesign::Pad", "Pad007")
pad8.Profile = sketch14
pad8.Length = 40
pad8.Reversed = True

# Sketch on XY plane
sketch15 = body.newObject("Sketcher::SketchObject", "Sketch014")
sketch15.AttachmentSupport = (doc.getObject("XY_Plane"), [""])
sketch15.MapMode = "FlatFace"
sketch15.AttachmentOffset = App.Placement(V(0, 0, -18.1016), App.Rotation())
sketch15.addGeometry([
    Part.Circle(V(146.5343, 71.9278, 0), V(0, 0, 1), 2),
    Part.Circle(V(124.5343, 71.9278, 0), V(0, 0, 1), 2),
], False)
sketch15.addConstraint([
    Sketcher.Constraint("Equal", 0, 1),
    Sketcher.Constraint("Horizontal", 0, 3, 1, 3),
    Sketcher.Constraint("Diameter", 0, Q("4 mm")),
    Sketcher.Constraint("DistanceX", 1, 3, 0, 3, Q("22 mm")),
    Sketcher.Constraint("DistanceX", -1, 1, 0, 3, Q("146.5343 mm")),
    Sketcher.Constraint("DistanceY", -1, 1, 0, 3, Q("71.9278 mm")),
])
pocket7 = body.newObject("PartDesign::Pocket", "Pocket006")
pocket7.Profile = sketch15
pocket7.Length = 10
pocket7.Reversed = True

doc.recompute()
